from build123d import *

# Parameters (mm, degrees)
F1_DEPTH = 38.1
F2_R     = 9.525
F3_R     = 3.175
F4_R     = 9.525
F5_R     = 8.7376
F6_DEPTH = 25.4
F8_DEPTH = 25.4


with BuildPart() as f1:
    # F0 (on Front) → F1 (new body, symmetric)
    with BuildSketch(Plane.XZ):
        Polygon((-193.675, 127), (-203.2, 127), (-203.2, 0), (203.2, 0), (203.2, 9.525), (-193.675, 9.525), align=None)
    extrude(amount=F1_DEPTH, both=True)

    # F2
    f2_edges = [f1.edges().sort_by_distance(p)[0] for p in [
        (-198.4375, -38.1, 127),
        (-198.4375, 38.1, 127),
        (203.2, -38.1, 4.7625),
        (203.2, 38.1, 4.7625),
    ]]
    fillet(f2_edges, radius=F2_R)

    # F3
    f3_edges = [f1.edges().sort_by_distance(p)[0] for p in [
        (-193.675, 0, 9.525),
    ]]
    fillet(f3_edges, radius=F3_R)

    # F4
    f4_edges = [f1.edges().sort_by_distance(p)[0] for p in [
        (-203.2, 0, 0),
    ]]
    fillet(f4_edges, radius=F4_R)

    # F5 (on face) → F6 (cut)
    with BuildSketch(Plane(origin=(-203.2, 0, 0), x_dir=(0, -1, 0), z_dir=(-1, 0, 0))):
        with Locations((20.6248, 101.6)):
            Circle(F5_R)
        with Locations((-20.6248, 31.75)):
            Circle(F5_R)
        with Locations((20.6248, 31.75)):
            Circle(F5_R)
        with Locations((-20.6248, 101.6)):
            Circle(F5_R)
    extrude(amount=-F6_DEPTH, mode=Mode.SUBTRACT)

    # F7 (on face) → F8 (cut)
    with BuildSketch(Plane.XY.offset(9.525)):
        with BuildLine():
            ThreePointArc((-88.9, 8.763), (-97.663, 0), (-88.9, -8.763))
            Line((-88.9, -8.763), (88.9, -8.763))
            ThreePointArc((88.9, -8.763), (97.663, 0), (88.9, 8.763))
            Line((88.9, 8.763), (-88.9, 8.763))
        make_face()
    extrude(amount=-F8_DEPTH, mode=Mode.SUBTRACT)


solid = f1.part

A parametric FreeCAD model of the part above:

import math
import FreeCAD as App
import Part
import Sketcher

V = App.Vector
Q = App.Units.Quantity


def edges_at(feature, points):
    """Names of the edges that pass closest to the given points."""
    edges = feature.Shape.Edges
    near = lambda p: min(range(len(edges)), key=lambda i: edges[i].distToShape(Part.Vertex(*p))[0])
    return sorted({f"Edge{near(p) + 1}" for p in points})

doc = App.newDocument("Part")
body = doc.addObject("PartDesign::Body", "Body")

sketch1 = body.newObject("Sketcher::SketchObject", "Sketch")
sketch1.AttachmentSupport = (doc.getObject("XZ_Plane"), [""])
sketch1.MapMode = "FlatFace"
sketch1.addGeometry(Part.LineSegment(V(-194, 127, 0), V(-203, 127, 0)), False)
sketch1.addGeometry(Part.LineSegment(V(-203, 127, 0), V(-203, 0, 0)), False)
sketch1.addGeometry(Part.LineSegment(V(-203, 0, 0), V(203, 0, 0)), False)
sketch1.addGeometry(Part.LineSegment(V(203, 0, 0), V(203, 10, 0)), False)
sketch1.addGeometry(Part.LineSegment(V(203, 10, 0), V(-194, 10, 0)), False)
sketch1.addGeometry(Part.LineSegment(V(-194, 10, 0), V(-194, 127, 0)), False)
sketch1.addConstraint(Sketcher.Constraint("Coincident", 0, 2, 1, 1))
sketch1.addConstraint(Sketcher.Constraint("Coincident", 1, 2, 2, 1))
sketch1.addConstraint(Sketcher.Constraint("Coincident", 2, 2, 3, 1))
sketch1.addConstraint(Sketcher.Constraint("Coincident", 3, 2, 4, 1))
sketch1.addConstraint(Sketcher.Constraint("Coincident", 4, 2, 5, 1))
sketch1.addConstraint(Sketcher.Constraint("Coincident", 5, 2, 0, 1))
sketch1.addConstraint(Sketcher.Constraint("Horizontal", 0))
sketch1.addConstraint(Sketcher.Constraint("Vertical", 1))
sketch1.addConstraint(Sketcher.Constraint("Horizontal", 2))
sketch1.addConstraint(Sketcher.Constraint("Vertical", 3))
sketch1.addConstraint(Sketcher.Constraint("Horizontal", 4))
sketch1.addConstraint(Sketcher.Constraint("Vertical", 5))
sketch1.addConstraint(Sketcher.Constraint("Symmetric", 1, 2, 2, 2, -1, 1))
sketch1.addConstraint(Sketcher.Constraint("Equal", 0, 3))
sketch1.addConstraint(Sketcher.Constraint("DistanceX", 2, 1, 2, 2, Q("16 in")))
sketch1.addConstraint(Sketcher.Constraint("DistanceY", 1, 2, 1, 1, Q("5 in")))
sketch1.addConstraint(Sketcher.Constraint("DistanceX", 0, 2, 0, 1, Q("0.375 in")))
pad1 = body.newObject("PartDesign::Pad", "Pad")
pad1.Profile = sketch1
pad1.Length = Q("3 in")
pad1.Midplane = True
doc.recompute()

fillet = body.newObject("PartDesign::Fillet", "Fillet")
fillet.Base = (pad1, edges_at(pad1, [
    (-198.438, -38.1, 127),
    (-198.438, 38.1, 127),
    (203.2, -38.1, 4.763),
    (203.2, 38.1, 4.763),
]))
fillet.Radius = Q("0.375 in")
doc.recompute()

fillet2 = body.newObject("PartDesign::Fillet", "Fillet001")
fillet2.Base = (fillet, edges_at(fillet, [(-193.675, 0, 9.525)]))
fillet2.Radius = Q("0.125 in")
doc.recompute()

fillet3 = body.newObject("PartDesign::Fillet", "Fillet002")
fillet3.Base = (fillet2, edges_at(fillet2, [(-203.2, 0, 0)]))
fillet3.Radius = Q("0.375 in")

sketch2 = body.newObject("Sketcher::SketchObject", "Sketch001")
sketch2.AttachmentSupport = (doc.getObject("YZ_Plane"), [""])
sketch2.MapMode = "FlatFace"
sketch2.AttachmentOffset = App.Placement(V(0, 0, -8 * 25.4), App.Rotation())
sketch2.addGeometry(Part.Circle(V(-21, 102, 0), V(0, 0, 1), 9), False)
sketch2.addGeometry(Part.Circle(V(21, 32, 0), V(0, 0, 1), 9), False)
sketch2.addGeometry(Part.Circle(V(-21, 32, 0), V(0, 0, 1), 9), False)
sketch2.addGeometry(Part.Circle(V(21, 102, 0), V(0, 0, 1), 9), False)
sketch2.addConstraint(Sketcher.Constraint("Equal", 0, 1))
sketch2.addConstraint(Sketcher.Constraint("Equal", 1, 2))
sketch2.addConstraint(Sketcher.Constraint("Equal", 2, 3))
sketch2.addConstraint(Sketcher.Constraint("Symmetric", 1, 3, 2, 3, -2))
sketch2.addConstraint(Sketcher.Constraint("Symmetric", 0, 3, 3, 3, -2))
sketch2.addConstraint(Sketcher.Constraint("Vertical", 0, 3, 2, 3))
sketch2.addConstraint(Sketcher.Constraint("Diameter", 0, Q("0.688 in")))
sketch2.addConstraint(Sketcher.Constraint("DistanceY", -1, 1, 0, 3, Q("4 in")))
sketch2.addConstraint(Sketcher.Constraint("DistanceY", -1, 1, 1, 3, Q("1.25 in")))
sketch2.addConstraint(Sketcher.Constraint("DistanceX", 0, 3, -1, 1, Q("0.812 in")))
pocket1 = body.newObject("PartDesign::Pocket", "Pocket")
pocket1.Profile = sketch2
pocket1.Length = Q("1 in")
pocket1.Reversed = True

sketch3 = body.newObject("Sketcher::SketchObject", "Sketch002")
sketch3.AttachmentSupport = (doc.getObject("XY_Plane"), [""])
sketch3.MapMode = "FlatFace"
sketch3.AttachmentOffset = App.Placement(V(0, 0, 0.375 * 25.4), App.Rotation())
sketch3.addGeometry(Part.ArcOfCircle(Part.Circle(V(-89, 0, 0), V(0, 0, 1), 9), math.radians(90), math.radians(270)), False)
sketch3.addGeometry(Part.LineSegment(V(-89, -9, 0), V(89, -9, 0)), False)
sketch3.addGeometry(Part.ArcOfCircle(Part.Circle(V(89, 0, 0), V(0, 0, 1), 9), math.radians(-90), math.radians(90)), False)
sketch3.addGeometry(Part.LineSegment(V(89, 9, 0), V(-89, 9, 0)), False)
sketch3.addConstraint(Sketcher.Constraint("Tangent", 0, 2, 1, 1))
sketch3.addConstraint(Sketcher.Constraint("Tangent", 1, 2, 2, 1))
sketch3.addConstraint(Sketcher.Constraint("Tangent", 2, 2, 3, 1))
sketch3.addConstraint(Sketcher.Constraint("Tangent", 3, 2, 0, 1))
sketch3.addConstraint(Sketcher.Constraint("Horizontal", 1))
sketch3.addConstraint(Sketcher.Constraint("Horizontal", 3))
sketch3.addConstraint(Sketcher.Constraint("Symmetric", 0, 3, 2, 3, -1, 1))
sketch3.addConstraint(Sketcher.Constraint("DistanceX", 1, 1, 1, 2, Q("7 in")))
sketch3.addConstraint(Sketcher.Constraint("Radius", 0, Q("0.345 in")))
pocket2 = body.newObject("PartDesign::Pocket", "Pocket001")
pocket2.Profile = sketch3
pocket2.Length = Q("1 in")

doc.recompute()
